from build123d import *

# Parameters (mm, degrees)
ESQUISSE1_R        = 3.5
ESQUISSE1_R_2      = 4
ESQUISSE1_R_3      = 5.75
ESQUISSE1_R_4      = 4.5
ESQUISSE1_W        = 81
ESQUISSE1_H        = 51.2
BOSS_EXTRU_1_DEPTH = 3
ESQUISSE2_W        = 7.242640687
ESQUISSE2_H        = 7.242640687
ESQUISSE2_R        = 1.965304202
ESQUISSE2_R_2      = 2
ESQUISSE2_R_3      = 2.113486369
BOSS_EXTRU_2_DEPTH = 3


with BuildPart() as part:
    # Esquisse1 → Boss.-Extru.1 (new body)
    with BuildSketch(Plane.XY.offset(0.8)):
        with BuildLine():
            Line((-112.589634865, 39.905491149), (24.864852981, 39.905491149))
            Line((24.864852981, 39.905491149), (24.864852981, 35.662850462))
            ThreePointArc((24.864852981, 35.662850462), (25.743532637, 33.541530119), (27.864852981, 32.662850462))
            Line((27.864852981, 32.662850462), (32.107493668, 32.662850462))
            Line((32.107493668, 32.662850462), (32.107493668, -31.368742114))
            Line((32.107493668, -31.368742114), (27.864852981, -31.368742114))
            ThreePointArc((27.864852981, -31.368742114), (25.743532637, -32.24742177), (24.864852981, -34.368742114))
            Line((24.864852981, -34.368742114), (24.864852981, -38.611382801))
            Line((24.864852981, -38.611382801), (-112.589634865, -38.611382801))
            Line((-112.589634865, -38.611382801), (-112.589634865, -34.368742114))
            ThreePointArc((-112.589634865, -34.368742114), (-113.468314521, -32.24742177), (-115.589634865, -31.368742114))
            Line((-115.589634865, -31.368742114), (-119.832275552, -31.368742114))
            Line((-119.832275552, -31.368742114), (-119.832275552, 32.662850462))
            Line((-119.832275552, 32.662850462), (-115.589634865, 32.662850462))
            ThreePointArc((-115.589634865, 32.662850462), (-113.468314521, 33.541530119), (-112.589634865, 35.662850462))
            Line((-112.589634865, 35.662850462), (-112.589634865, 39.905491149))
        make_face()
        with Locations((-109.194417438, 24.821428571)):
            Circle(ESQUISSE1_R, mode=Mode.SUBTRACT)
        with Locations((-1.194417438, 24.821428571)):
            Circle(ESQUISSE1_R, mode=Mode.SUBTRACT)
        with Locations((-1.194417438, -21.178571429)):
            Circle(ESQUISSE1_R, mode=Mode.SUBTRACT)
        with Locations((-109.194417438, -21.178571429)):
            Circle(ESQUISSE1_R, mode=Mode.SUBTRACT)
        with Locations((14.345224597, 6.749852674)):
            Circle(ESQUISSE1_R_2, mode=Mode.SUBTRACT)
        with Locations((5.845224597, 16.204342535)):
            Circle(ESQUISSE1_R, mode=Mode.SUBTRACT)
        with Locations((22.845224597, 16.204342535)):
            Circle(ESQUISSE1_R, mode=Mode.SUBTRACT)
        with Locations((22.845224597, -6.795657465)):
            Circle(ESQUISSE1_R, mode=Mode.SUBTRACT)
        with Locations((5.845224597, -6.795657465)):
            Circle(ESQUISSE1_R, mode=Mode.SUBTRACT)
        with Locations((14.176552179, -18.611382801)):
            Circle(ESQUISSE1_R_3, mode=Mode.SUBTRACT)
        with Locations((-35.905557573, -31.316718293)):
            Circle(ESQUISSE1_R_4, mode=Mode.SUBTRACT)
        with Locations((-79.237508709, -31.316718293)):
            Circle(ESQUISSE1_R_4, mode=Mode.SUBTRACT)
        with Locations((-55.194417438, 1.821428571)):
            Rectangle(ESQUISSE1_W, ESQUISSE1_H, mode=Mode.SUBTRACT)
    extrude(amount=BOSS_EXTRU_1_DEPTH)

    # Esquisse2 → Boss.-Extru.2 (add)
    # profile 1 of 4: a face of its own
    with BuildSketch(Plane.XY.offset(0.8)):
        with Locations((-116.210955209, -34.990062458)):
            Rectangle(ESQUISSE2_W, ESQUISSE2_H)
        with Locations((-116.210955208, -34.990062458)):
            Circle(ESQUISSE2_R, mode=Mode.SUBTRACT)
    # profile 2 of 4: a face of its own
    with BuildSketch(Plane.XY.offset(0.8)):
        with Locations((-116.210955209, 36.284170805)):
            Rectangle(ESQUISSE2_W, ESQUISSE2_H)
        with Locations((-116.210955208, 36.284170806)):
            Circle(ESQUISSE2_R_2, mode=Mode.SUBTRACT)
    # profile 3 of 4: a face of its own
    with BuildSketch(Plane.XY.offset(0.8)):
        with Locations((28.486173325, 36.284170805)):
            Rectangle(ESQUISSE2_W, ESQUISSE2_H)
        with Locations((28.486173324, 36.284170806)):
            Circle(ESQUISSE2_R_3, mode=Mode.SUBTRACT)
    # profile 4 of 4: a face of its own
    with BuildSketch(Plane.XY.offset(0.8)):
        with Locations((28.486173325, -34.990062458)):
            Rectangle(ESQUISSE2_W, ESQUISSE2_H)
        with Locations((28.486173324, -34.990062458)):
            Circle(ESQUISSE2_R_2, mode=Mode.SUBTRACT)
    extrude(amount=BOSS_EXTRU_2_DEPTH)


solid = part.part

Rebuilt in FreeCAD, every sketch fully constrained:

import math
import FreeCAD as App
import Part
import Sketcher

V = App.Vector
Q = App.Units.Quantity

doc = App.newDocument("Part")
body = doc.addObject("PartDesign::Body", "Body")

# Sketch on XY plane
sketch1 = body.newObject("Sketcher::SketchObject", "Sketch")
sketch1.AttachmentSupport = (doc.getObject("XY_Plane"), [""])
sketch1.MapMode = "FlatFace"
sketch1.AttachmentOffset = App.Placement(V(0, 0, 0.8), App.Rotation())
sketch1.addGeometry([
    Part.LineSegment(V(24.864853, 39.905491, 0), V(-112.589635, 39.905491, 0)),  # 0
    Part.LineSegment(V(-112.589635, 39.905491, 0), V(-112.589635, 35.66285, 0)),  # 1
    Part.ArcOfCircle(Part.Circle(V(-115.589635, 35.66285, 0), V(0, 0, 1), 3), math.radians(-90), math.radians(0)),  # 2
    Part.LineSegment(V(-115.589635, 32.66285, 0), V(-119.832276, 32.66285, 0)),  # 3
    Part.LineSegment(V(-119.832276, 32.66285, 0), V(-119.832276, -31.368742, 0)),  # 4
    Part.LineSegment(V(-119.832276, -31.368742, 0), V(-115.589635, -31.368742, 0)),  # 5
    Part.ArcOfCircle(Part.Circle(V(-115.589635, -34.368742, 0), V(0, 0, 1), 3), math.radians(0), math.radians(90)),  # 6
    Part.LineSegment(V(-112.589635, -34.368742, 0), V(-112.589635, -38.611383, 0)),  # 7
    Part.LineSegment(V(-112.589635, -38.611383, 0), V(24.864853, -38.611383, 0)),  # 8
    Part.LineSegment(V(24.864853, -38.611383, 0), V(24.864853, -34.368742, 0)),  # 9
    Part.ArcOfCircle(Part.Circle(V(27.864853, -34.368742, 0), V(0, 0, 1), 3), math.radians(90), math.radians(180)),  # 10
    Part.LineSegment(V(27.864853, -31.368742, 0), V(32.107494, -31.368742, 0)),  # 11
    Part.LineSegment(V(32.107494, -31.368742, 0), V(32.107494, 32.66285, 0)),  # 12
    Part.LineSegment(V(32.107494, 32.66285, 0), V(27.864853, 32.66285, 0)),  # 13
    Part.ArcOfCircle(Part.Circle(V(27.864853, 35.66285, 0), V(0, 0, 1), 3), math.radians(180), math.radians(270)),  # 14
    Part.LineSegment(V(24.864853, 35.66285, 0), V(24.864853, 39.905491, 0)),  # 15
    Part.Circle(V(-1.194417, -21.178571, 0), V(0, 0, 1), 3.5),  # 16
    Part.Circle(V(-35.905558, -31.316718, 0), V(0, 0, 1), 4.5),  # 17
    Part.Circle(V(14.176552, -18.611383, 0), V(0, 0, 1), 5.75),  # 18
    Part.Circle(V(22.845225, -6.795657, 0), V(0, 0, 1), 3.5),  # 19
    Part.Circle(V(5.845225, -6.795657, 0), V(0, 0, 1), 3.5),  # 20
    Part.Circle(V(-79.237509, -31.316718, 0), V(0, 0, 1), 4.5),  # 21
    Part.Circle(V(-109.194417, -21.178571, 0), V(0, 0, 1), 3.5),  # 22
    Part.Circle(V(14.345225, 6.749853, 0), V(0, 0, 1), 4),  # 23
    Part.Circle(V(22.845225, 16.204343, 0), V(0, 0, 1), 3.5),  # 24
    Part.Circle(V(5.845225, 16.204343, 0), V(0, 0, 1), 3.5),  # 25
    Part.Circle(V(-1.194417, 24.821429, 0), V(0, 0, 1), 3.5),  # 26
    Part.LineSegment(V(-95.694417, -23.778571, 0), V(-95.694417, 27.421429, 0)),  # 27
    Part.LineSegment(V(-95.694417, 27.421429, 0), V(-14.694417, 27.421429, 0)),  # 28
    Part.LineSegment(V(-14.694417, 27.421429, 0), V(-14.694417, -23.778571, 0)),  # 29
    Part.LineSegment(V(-14.694417, -23.778571, 0), V(-95.694417, -23.778571, 0)),  # 30
    Part.Circle(V(-109.194417, 24.821429, 0), V(0, 0, 1), 3.5),  # 31
], False)
sketch1.addConstraint([
    Sketcher.Constraint("Coincident", 0, 2, 1, 1),
    Sketcher.Constraint("Tangent", 1, 2, 2, 2),
    Sketcher.Constraint("Tangent", 2, 1, 3, 1),
    Sketcher.Constraint("Coincident", 3, 2, 4, 1),
    Sketcher.Constraint("Coincident", 4, 2, 5, 1),
    Sketcher.Constraint("Tangent", 5, 2, 6, 2),
    Sketcher.Constraint("Tangent", 6, 1, 7, 1),
    Sketcher.Constraint("Coincident", 7, 2, 8, 1),
    Sketcher.Constraint("Coincident", 8, 2, 9, 1),
    Sketcher.Constraint("Tangent", 9, 2, 10, 2),
    Sketcher.Constraint("Tangent", 10, 1, 11, 1),
    Sketcher.Constraint("Coincident", 11, 2, 12, 1),
    Sketcher.Constraint("Coincident", 12, 2, 13, 1),
    Sketcher.Constraint("Tangent", 13, 2, 14, 2),
    Sketcher.Constraint("Tangent", 14, 1, 15, 1),
    Sketcher.Constraint("Coincident", 15, 2, 0, 1),
    Sketcher.Constraint("Coincident", 27, 2, 28, 1),
    Sketcher.Constraint("Coincident", 28, 2, 29, 1),
    Sketcher.Constraint("Coincident", 29, 2, 30, 1),
    Sketcher.Constraint("Coincident", 30, 2, 27, 1),
    Sketcher.Constraint("Horizontal", 0),
    Sketcher.Constraint("Vertical", 1),
    Sketcher.Constraint("Horizontal", 3),
    Sketcher.Constraint("Vertical", 4),
    Sketcher.Constraint("Horizontal", 5),
    Sketcher.Constraint("Vertical", 7),
    Sketcher.Constraint("Horizontal", 8),
    Sketcher.Constraint("Vertical", 9),
    Sketcher.Constraint("Horizontal", 11),
    Sketcher.Constraint("Vertical", 12),
    Sketcher.Constraint("Horizontal", 13),
    Sketcher.Constraint("Vertical", 15),
    Sketcher.Constraint("Vertical", 27),
    Sketcher.Constraint("Horizontal", 28),
    Sketcher.Constraint("Vertical", 29),
    Sketcher.Constraint("Horizontal", 30),
    Sketcher.Constraint("Equal", 2, 6),
    Sketcher.Constraint("Equal", 6, 10),
    Sketcher.Constraint("Equal", 10, 14),
    Sketcher.Constraint("Equal", 16, 19),
    Sketcher.Constraint("Equal", 19, 20),
    Sketcher.Constraint("Equal", 17, 21),
    Sketcher.Constraint("Equal", 20, 22),
    Sketcher.Constraint("Equal", 22, 24),
    Sketcher.Constraint("Equal", 24, 25),
    Sketcher.Constraint("Equal", 25, 26),
    Sketcher.Constraint("Equal", 26, 31),
    Sketcher.Constraint("Horizontal", 6, 3, 10, 3),
    Sketcher.Constraint("Horizontal", 2, 3, 14, 3),
    Sketcher.Constraint("Horizontal", 19, 3, 20, 3),
    Sketcher.Constraint("Horizontal", 17, 3, 21, 3),
    Sketcher.Constraint("Horizontal", 16, 3, 22, 3),
    Sketcher.Constraint("Horizontal", 24, 3, 25, 3),
    Sketcher.Constraint("Horizontal", 26, 3, 31, 3),
    Sketcher.Constraint("Vertical", 2, 3, 6, 3),
    Sketcher.Constraint("Vertical", 10, 3, 14, 3),
    Sketcher.Constraint("Vertical", 19, 3, 24, 3),
    Sketcher.Constraint("Vertical", 20, 3, 25, 3),
    Sketcher.Constraint("Vertical", 16, 3, 26, 3),
    Sketcher.Constraint("Vertical", 22, 3, 31, 3),
    Sketcher.Constraint("Equal", 5, 11),
    Sketcher.Constraint("Equal", 13, 1),
    Sketcher.Constraint("Equal", 1, 7),
    Sketcher.Constraint("Diameter", 16, Q("7 mm")),
    Sketcher.Constraint("Diameter", 17, Q("9 mm")),
    Sketcher.Constraint("Diameter", 23, Q("8 mm")),
    Sketcher.Constraint("Radius", 2, Q("3 mm")),
    Sketcher.Constraint("Diameter", 18, Q("11.5 mm")),
    Sketcher.Constraint("DistanceX", 28, 1, 28, 2, Q("81 mm")),
    Sketcher.Constraint("DistanceY", 27, 1, 27, 2, Q("51.2 mm")),
    Sketcher.Constraint("DistanceX", 20, 3, 19, 3, Q("17 mm")),
    Sketcher.Constraint("DistanceX", 22, 3, 16, 3, Q("108 mm")),
    Sketcher.Constraint("DistanceY", 19, 3, 24, 3, Q("23 mm")),
    Sketcher.Constraint("DistanceY", 22, 3, 31, 3, Q("46 mm")),
    Sketcher.Constraint("DistanceY", 8, 2, 18, 3, Q("20 mm")),
    Sketcher.Constraint("DistanceX", 23, 3, 19, 3, Q("8.5 mm")),
    Sketcher.Constraint("DistanceX", 31, 3, 27, 2, Q("13.5 mm")),
    Sketcher.Constraint("DistanceY", 31, 3, 27, 2, Q("2.6 mm")),
    Sketcher.Constraint("DistanceX", 3, 2, 3, 1, Q("4.242641 mm")),
    Sketcher.Constraint("DistanceX", 18, 3, 10, 3, Q("13.688301 mm")),
    Sketcher.Constraint("DistanceX", 0, 2, 0, 1, Q("137.454488 mm")),
    Sketcher.Constraint("DistanceY", 4, 2, 4, 1, Q("64.031593 mm")),
    Sketcher.Constraint("DistanceY", -1, 1, 2, 3, Q("35.66285 mm")),
    Sketcher.Constraint("DistanceY", 16, 3, -1, 1, Q("21.178571 mm")),
    Sketcher.Constraint("DistanceY", 17, 3, -1, 1, Q("31.316718 mm")),
    Sketcher.Constraint("DistanceX", 21, 3, -1, 1, Q("79.237509 mm")),
    Sketcher.Constraint("DistanceX", 16, 3, 10, 3, Q("29.05927 mm")),
    Sketcher.Constraint("DistanceX", 17, 3, 16, 3, Q("34.71114 mm")),
    Sketcher.Constraint("DistanceX", 19, 3, 10, 3, Q("5.019628 mm")),
    Sketcher.Constraint("DistanceY", 17, 3, 19, 3, Q("24.521061 mm")),
    Sketcher.Constraint("DistanceX", 21, 3, 17, 3, Q("43.331951 mm")),
    Sketcher.Constraint("DistanceY", 19, 3, 23, 3, Q("13.54551 mm")),
])
pad1 = body.newObject("PartDesign::Pad", "Pad")
pad1.Profile = sketch1
pad1.Length = 3

# Sketch on XY plane
sketch2 = body.newObject("Sketcher::SketchObject", "Sketch001")
sketch2.AttachmentSupport = (doc.getObject("XY_Plane"), [""])
sketch2.MapMode = "FlatFace"
sketch2.AttachmentOffset = App.Placement(V(0, 0, 0.8), App.Rotation())
sketch2.addGeometry([
    Part.LineSegment(V(-119.832276, -31.368742, 0), V(-119.832276, -38.611383, 0)),  # 0
    Part.LineSegment(V(-119.832276, -38.611383, 0), V(-112.589635, -38.611383, 0)),  # 1
    Part.LineSegment(V(-112.589635, -38.611383, 0), V(-112.589635, -31.368742, 0)),  # 2
    Part.LineSegment(V(-112.589635, -31.368742, 0), V(-119.832276, -31.368742, 0)),  # 3
    Part.Circle(V(-116.210955, -34.990062, 0), V(0, 0, 1), 1.965304),  # 4
    Part.LineSegment(V(-119.832276, 39.905491, 0), V(-119.832276, 32.66285, 0)),  # 5
    Part.LineSegment(V(-119.832276, 32.66285, 0), V(-112.589635, 32.66285, 0)),  # 6
    Part.LineSegment(V(-112.589635, 32.66285, 0), V(-112.589635, 39.905491, 0)),  # 7
    Part.LineSegment(V(-112.589635, 39.905491, 0), V(-119.832276, 39.905491, 0)),  # 8
    Part.Circle(V(-116.210955, 36.284171, 0), V(0, 0, 1), 2),  # 9
    Part.LineSegment(V(24.864853, 39.905491, 0), V(24.864853, 32.66285, 0)),  # 10
    Part.LineSegment(V(24.864853, 32.66285, 0), V(32.107494, 32.66285, 0)),  # 11
    Part.LineSegment(V(32.107494, 32.66285, 0), V(32.107494, 39.905491, 0)),  # 12
    Part.LineSegment(V(32.107494, 39.905491, 0), V(24.864853, 39.905491, 0)),  # 13
    Part.Circle(V(28.486173, 36.284171, 0), V(0, 0, 1), 2.113486),  # 14
    Part.LineSegment(V(24.864853, -31.368742, 0), V(24.864853, -38.611383, 0)),  # 15
    Part.LineSegment(V(24.864853, -38.611383, 0), V(32.107494, -38.611383, 0)),  # 16
    Part.LineSegment(V(32.107494, -38.611383, 0), V(32.107494, -31.368742, 0)),  # 17
    Part.LineSegment(V(32.107494, -31.368742, 0), V(24.864853, -31.368742, 0)),  # 18
    Part.Circle(V(28.486173, -34.990062, 0), V(0, 0, 1), 2),  # 19
], False)
sketch2.addConstraint([
    Sketcher.Constraint("Coincident", 0, 2, 1, 1),
    Sketcher.Constraint("Coincident", 1, 2, 2, 1),
    Sketcher.Constraint("Coincident", 2, 2, 3, 1),
    Sketcher.Constraint("Coincident", 3, 2, 0, 1),
    Sketcher.Constraint("Coincident", 5, 2, 6, 1),
    Sketcher.Constraint("Coincident", 6, 2, 7, 1),
    Sketcher.Constraint("Coincident", 7, 2, 8, 1),
    Sketcher.Constraint("Coincident", 8, 2, 5, 1),
    Sketcher.Constraint("Coincident", 10, 2, 11, 1),
    Sketcher.Constraint("Coincident", 11, 2, 12, 1),
    Sketcher.Constraint("Coincident", 12, 2, 13, 1),
    Sketcher.Constraint("Coincident", 13, 2, 10, 1),
    Sketcher.Constraint("Coincident", 15, 2, 16, 1),
    Sketcher.Constraint("Coincident", 16, 2, 17, 1),
    Sketcher.Constraint("Coincident", 17, 2, 18, 1),
    Sketcher.Constraint("Coincident", 18, 2, 15, 1),
    Sketcher.Constraint("Vertical", 0),
    Sketcher.Constraint("Horizontal", 1),
    Sketcher.Constraint("Vertical", 2),
    Sketcher.Constraint("Horizontal", 3),
    Sketcher.Constraint("Vertical", 5),
    Sketcher.Constraint("Horizontal", 6),
    Sketcher.Constraint("Vertical", 7),
    Sketcher.Constraint("Horizontal", 8),
    Sketcher.Constraint("Vertical", 10),
    Sketcher.Constraint("Horizontal", 11),
    Sketcher.Constraint("Vertical", 12),
    Sketcher.Constraint("Horizontal", 13),
    Sketcher.Constraint("Vertical", 15),
    Sketcher.Constraint("Horizontal", 16),
    Sketcher.Constraint("Vertical", 17),
    Sketcher.Constraint("Horizontal", 18),
    Sketcher.Constraint("Equal", 9, 19),
    Sketcher.Constraint("Horizontal", 9, 3, 14, 3),
    Sketcher.Constraint("Horizontal", 4, 3, 19, 3),
    Sketcher.Constraint("Horizontal", 6, 2, 10, 2),
    Sketcher.Constraint("Horizontal", 8, 2, 12, 2),
    Sketcher.Constraint("Horizontal", 1, 2, 15, 2),
    Sketcher.Constraint("Horizontal", 3, 2, 17, 2),
    Sketcher.Constraint("Vertical", 4, 3, 9, 3),
    Sketcher.Constraint("Vertical", 14, 3, 19, 3),
    Sketcher.Constraint("Vertical", 3, 2, 5, 2),
    Sketcher.Constraint("Vertical", 2, 2, 6, 2),
    Sketcher.Constraint("Vertical", 13, 2, 15, 2),
    Sketcher.Constraint("Vertical", 12, 2, 16, 2),
    Sketcher.Constraint("Equal", 8, 11),
    Sketcher.Constraint("Equal", 18, 0),
    Sketcher.Constraint("Equal", 2, 5),
    Sketcher.Constraint("Diameter", 9, Q("4 mm")),
    Sketcher.Constraint("Diameter", 4, Q("3.930608 mm")),
    Sketcher.Constraint("Diameter", 14, Q("4.226973 mm")),
    Sketcher.Constraint("DistanceX", 1, 1, 1, 2, Q("7.242641 mm")),
    Sketcher.Constraint("DistanceY", -1, 1, 9, 3, Q("36.284171 mm")),
    Sketcher.Constraint("DistanceY", -1, 1, 5, 2, Q("32.66285 mm")),
    Sketcher.Constraint("DistanceX", 9, 3, 14, 3, Q("144.697129 mm")),
    Sketcher.Constraint("DistanceX", 0, 2, 4, 3, Q("3.62132 mm")),
    Sketcher.Constraint("DistanceY", 0, 2, 4, 3, Q("3.62132 mm")),
    Sketcher.Constraint("DistanceX", 10, 2, 14, 3, Q("3.62132 mm")),
    Sketcher.Constraint("DistanceX", 4, 3, -1, 1, Q("116.210955 mm")),
    Sketcher.Constraint("DistanceY", 4, 3, -1, 1, Q("34.990062 mm")),
])
pad2 = body.newObject("PartDesign::Pad", "Pad001")
pad2.Profile = sketch2
pad2.Length = 3

doc.recompute()
